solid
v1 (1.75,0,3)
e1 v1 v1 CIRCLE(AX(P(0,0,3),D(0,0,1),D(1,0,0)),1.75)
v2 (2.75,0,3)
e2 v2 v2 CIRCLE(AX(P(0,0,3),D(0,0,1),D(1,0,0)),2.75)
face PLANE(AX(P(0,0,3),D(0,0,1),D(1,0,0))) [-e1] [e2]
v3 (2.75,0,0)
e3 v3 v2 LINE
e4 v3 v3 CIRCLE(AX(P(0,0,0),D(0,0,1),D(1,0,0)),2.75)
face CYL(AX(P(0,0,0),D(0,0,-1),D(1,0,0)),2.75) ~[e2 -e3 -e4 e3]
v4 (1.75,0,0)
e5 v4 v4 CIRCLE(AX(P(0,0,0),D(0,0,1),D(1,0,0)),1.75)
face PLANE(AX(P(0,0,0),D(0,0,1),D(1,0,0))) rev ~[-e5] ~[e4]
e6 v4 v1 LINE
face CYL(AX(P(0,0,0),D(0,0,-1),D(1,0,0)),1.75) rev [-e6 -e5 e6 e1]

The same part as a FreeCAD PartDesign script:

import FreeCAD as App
import Part
import Sketcher

V = App.Vector
Q = App.Units.Quantity

doc = App.newDocument("Part")
body = doc.addObject("PartDesign::Body", "Body")

# Sketch on XY plane
sketch1 = body.newObject("Sketcher::SketchObject", "Sketch")
sketch1.AttachmentSupport = (doc.getObject("XY_Plane"), [""])
sketch1.MapMode = "FlatFace"
sketch1.addGeometry(Part.Circle(V(0, 0, 0), V(0, 0, 1), 1.8), False)
sketch1.addConstraint([
    Sketcher.Constraint("Coincident", 0, 3, -1, 1),
    Sketcher.Constraint("Diameter", 0, Q("3.5 mm")),
])
pad1 = body.newObject("PartDesign::Pad", "Pad")
pad1.Profile = sketch1
pad1.Length = 3
body2 = doc.addObject("PartDesign::Body", "Body001")

# Sketch on XY plane
sketch2 = body2.newObject("Sketcher::SketchObject", "Sketch001")
sketch2.AttachmentSupport = (doc.getObject("XY_Plane001"), [""])
sketch2.MapMode = "FlatFace"
sketch2.addGeometry(Part.Circle(V(0, 0, 0), V(0, 0, 1), 2.8), False)
sketch2.addConstraint([
    Sketcher.Constraint("Coincident", 0, 3, -1, 1),
    Sketcher.Constraint("Diameter", 0, Q("5.5 mm")),
])
pad2 = body2.newObject("PartDesign::Pad", "Pad001")
pad2.Profile = sketch2
pad2.Length = 3
doc.recompute()

boolean = body2.newObject("PartDesign::Boolean", "Boolean")
boolean.Type = "Cut"
boolean.addObjects([body])

doc.recompute()
